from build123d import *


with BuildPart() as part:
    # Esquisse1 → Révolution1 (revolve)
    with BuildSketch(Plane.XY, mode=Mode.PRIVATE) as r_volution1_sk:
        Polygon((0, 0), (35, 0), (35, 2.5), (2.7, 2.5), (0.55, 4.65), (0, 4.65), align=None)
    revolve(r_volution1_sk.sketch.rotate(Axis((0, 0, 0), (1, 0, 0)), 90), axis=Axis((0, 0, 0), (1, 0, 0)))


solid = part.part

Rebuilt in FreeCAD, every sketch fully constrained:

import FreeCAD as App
import Part
import Sketcher
Q = App.Units.Quantity

doc = App.newDocument("Part")
body = doc.addObject("PartDesign::Body", "Body")

sketch1 = doc.addObject("Sketcher::SketchObject", "Sketch")
body.addObject(sketch1)
sketch1.AttachmentSupport = (doc.XY_Plane, [""])
sketch1.MapMode = "FlatFace"
sketch1.addGeometry([
    Part.LineSegment(App.Vector(0, 0, 0), App.Vector(35, 0, 0)),
    Part.LineSegment(App.Vector(35, 0, 0), App.Vector(35, 2.5, 0)),
    Part.LineSegment(App.Vector(35, 2.5, 0), App.Vector(2.7, 2.5, 0)),
    Part.LineSegment(App.Vector(2.7, 2.5, 0), App.Vector(0.6, 4.7, 0)),
    Part.LineSegment(App.Vector(0.6, 4.7, 0), App.Vector(0, 4.7, 0)),
    Part.LineSegment(App.Vector(0, 4.7, 0), App.Vector(0, 0, 0)),
], False)
sketch1.addConstraint([
    Sketcher.Constraint("Coincident", 0, 2, 1, 1),
    Sketcher.Constraint("Coincident", 1, 2, 2, 1),
    Sketcher.Constraint("Coincident", 2, 2, 3, 1),
    Sketcher.Constraint("Coincident", 3, 2, 4, 1),
    Sketcher.Constraint("Coincident", 4, 2, 5, 1),
    Sketcher.Constraint("Coincident", 5, 2, 0, 1),
    Sketcher.Constraint("Horizontal", 0),
    Sketcher.Constraint("Vertical", 1),
    Sketcher.Constraint("Horizontal", 2),
    Sketcher.Constraint("Horizontal", 4),
    Sketcher.Constraint("Vertical", 5),
    Sketcher.Constraint("Coincident", 5, 2, -1, 1),
    Sketcher.Constraint("DistanceX", 0, 1, 0, 2, Q("35 mm")),
    Sketcher.Constraint("Angle", 3, Q("135 deg")),
    Sketcher.Constraint("DistanceX", 2, 2, 2, 1, Q("32.3 mm")),
    Sketcher.Constraint("DistanceY", 1, 1, 1, 2, Q("2.5 mm")),
    Sketcher.Constraint("DistanceX", 4, 2, 4, 1, Q("0.55 mm")),
])
revolution = doc.addObject("PartDesign::Revolution", "Revolution")
body.addObject(revolution)
revolution.Profile = sketch1
revolution.ReferenceAxis = (sketch1, ["H_Axis"])
revolution.Angle = 360

doc.recompute()
